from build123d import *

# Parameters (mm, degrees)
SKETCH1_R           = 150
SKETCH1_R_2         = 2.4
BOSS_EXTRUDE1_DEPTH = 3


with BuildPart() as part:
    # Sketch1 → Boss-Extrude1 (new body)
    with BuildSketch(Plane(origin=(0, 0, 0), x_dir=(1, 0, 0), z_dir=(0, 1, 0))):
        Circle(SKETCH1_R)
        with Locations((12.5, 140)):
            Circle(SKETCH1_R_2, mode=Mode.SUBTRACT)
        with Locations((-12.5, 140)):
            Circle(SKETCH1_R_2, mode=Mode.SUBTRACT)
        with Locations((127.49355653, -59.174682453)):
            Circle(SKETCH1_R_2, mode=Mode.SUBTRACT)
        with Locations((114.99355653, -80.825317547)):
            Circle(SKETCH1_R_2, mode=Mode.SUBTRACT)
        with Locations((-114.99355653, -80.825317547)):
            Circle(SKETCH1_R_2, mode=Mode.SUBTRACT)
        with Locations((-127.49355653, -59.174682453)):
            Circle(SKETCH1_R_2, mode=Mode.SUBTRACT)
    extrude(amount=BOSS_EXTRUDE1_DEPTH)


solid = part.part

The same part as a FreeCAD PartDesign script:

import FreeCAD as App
import Part
import Sketcher

doc = App.newDocument("Part")
body = doc.addObject("PartDesign::Body", "Body")

sketch1 = body.newObject("Sketcher::SketchObject", "Sketch")
sketch1.AttachmentSupport = (doc.getObject("XZ_Plane"), [""])
sketch1.MapMode = "FlatFace"
sketch1.addGeometry([
    Part.Circle(App.Vector(0, 0, 0), App.Vector(0, 0, 1), 150),
    Part.Circle(App.Vector(-115, 80.8, 0), App.Vector(0, 0, 1), 2.4),
    Part.Circle(App.Vector(-127.5, 59.2, 0), App.Vector(0, 0, 1), 2.4),
    Part.Circle(App.Vector(115, 80.8, 0), App.Vector(0, 0, 1), 2.4),
    Part.Circle(App.Vector(127.5, 59.2, 0), App.Vector(0, 0, 1), 2.4),
    Part.Circle(App.Vector(-12.5, -140, 0), App.Vector(0, 0, 1), 2.4),
    Part.Circle(App.Vector(12.5, -140, 0), App.Vector(0, 0, 1), 2.4),
], False)
sketch1.addConstraint([
    Sketcher.Constraint("Coincident", 0, 3, -1, 1),
    Sketcher.Constraint("Equal", 1, 2),
    Sketcher.Constraint("Equal", 2, 3),
    Sketcher.Constraint("Equal", 3, 4),
    Sketcher.Constraint("Equal", 4, 5),
    Sketcher.Constraint("Equal", 5, 6),
    Sketcher.Constraint("Symmetric", 1, 3, 3, 3, -2),
    Sketcher.Constraint("Symmetric", 2, 3, 4, 3, -2),
    Sketcher.Constraint("Symmetric", 5, 3, 6, 3, -2),
    Sketcher.Constraint("Diameter", 0, 300.0),
    Sketcher.Constraint("Diameter", 1, 4.8),
    Sketcher.Constraint("DistanceY", 5, 3, -1, 1, 140.0),
    Sketcher.Constraint("DistanceX", 5, 3, 6, 3, 25.0),
    Sketcher.Constraint("DistanceX", 2, 3, 1, 3, 12.5),
    Sketcher.Constraint("DistanceX", 1, 3, -1, 1, 114.993557),
    Sketcher.Constraint("DistanceY", -1, 1, 1, 3, 80.825318),
    Sketcher.Constraint("DistanceY", -1, 1, 2, 3, 59.174682),
])
pad1 = body.newObject("PartDesign::Pad", "Pad")
pad1.Profile = sketch1
pad1.Length = 3
pad1.Reversed = True

doc.recompute()
